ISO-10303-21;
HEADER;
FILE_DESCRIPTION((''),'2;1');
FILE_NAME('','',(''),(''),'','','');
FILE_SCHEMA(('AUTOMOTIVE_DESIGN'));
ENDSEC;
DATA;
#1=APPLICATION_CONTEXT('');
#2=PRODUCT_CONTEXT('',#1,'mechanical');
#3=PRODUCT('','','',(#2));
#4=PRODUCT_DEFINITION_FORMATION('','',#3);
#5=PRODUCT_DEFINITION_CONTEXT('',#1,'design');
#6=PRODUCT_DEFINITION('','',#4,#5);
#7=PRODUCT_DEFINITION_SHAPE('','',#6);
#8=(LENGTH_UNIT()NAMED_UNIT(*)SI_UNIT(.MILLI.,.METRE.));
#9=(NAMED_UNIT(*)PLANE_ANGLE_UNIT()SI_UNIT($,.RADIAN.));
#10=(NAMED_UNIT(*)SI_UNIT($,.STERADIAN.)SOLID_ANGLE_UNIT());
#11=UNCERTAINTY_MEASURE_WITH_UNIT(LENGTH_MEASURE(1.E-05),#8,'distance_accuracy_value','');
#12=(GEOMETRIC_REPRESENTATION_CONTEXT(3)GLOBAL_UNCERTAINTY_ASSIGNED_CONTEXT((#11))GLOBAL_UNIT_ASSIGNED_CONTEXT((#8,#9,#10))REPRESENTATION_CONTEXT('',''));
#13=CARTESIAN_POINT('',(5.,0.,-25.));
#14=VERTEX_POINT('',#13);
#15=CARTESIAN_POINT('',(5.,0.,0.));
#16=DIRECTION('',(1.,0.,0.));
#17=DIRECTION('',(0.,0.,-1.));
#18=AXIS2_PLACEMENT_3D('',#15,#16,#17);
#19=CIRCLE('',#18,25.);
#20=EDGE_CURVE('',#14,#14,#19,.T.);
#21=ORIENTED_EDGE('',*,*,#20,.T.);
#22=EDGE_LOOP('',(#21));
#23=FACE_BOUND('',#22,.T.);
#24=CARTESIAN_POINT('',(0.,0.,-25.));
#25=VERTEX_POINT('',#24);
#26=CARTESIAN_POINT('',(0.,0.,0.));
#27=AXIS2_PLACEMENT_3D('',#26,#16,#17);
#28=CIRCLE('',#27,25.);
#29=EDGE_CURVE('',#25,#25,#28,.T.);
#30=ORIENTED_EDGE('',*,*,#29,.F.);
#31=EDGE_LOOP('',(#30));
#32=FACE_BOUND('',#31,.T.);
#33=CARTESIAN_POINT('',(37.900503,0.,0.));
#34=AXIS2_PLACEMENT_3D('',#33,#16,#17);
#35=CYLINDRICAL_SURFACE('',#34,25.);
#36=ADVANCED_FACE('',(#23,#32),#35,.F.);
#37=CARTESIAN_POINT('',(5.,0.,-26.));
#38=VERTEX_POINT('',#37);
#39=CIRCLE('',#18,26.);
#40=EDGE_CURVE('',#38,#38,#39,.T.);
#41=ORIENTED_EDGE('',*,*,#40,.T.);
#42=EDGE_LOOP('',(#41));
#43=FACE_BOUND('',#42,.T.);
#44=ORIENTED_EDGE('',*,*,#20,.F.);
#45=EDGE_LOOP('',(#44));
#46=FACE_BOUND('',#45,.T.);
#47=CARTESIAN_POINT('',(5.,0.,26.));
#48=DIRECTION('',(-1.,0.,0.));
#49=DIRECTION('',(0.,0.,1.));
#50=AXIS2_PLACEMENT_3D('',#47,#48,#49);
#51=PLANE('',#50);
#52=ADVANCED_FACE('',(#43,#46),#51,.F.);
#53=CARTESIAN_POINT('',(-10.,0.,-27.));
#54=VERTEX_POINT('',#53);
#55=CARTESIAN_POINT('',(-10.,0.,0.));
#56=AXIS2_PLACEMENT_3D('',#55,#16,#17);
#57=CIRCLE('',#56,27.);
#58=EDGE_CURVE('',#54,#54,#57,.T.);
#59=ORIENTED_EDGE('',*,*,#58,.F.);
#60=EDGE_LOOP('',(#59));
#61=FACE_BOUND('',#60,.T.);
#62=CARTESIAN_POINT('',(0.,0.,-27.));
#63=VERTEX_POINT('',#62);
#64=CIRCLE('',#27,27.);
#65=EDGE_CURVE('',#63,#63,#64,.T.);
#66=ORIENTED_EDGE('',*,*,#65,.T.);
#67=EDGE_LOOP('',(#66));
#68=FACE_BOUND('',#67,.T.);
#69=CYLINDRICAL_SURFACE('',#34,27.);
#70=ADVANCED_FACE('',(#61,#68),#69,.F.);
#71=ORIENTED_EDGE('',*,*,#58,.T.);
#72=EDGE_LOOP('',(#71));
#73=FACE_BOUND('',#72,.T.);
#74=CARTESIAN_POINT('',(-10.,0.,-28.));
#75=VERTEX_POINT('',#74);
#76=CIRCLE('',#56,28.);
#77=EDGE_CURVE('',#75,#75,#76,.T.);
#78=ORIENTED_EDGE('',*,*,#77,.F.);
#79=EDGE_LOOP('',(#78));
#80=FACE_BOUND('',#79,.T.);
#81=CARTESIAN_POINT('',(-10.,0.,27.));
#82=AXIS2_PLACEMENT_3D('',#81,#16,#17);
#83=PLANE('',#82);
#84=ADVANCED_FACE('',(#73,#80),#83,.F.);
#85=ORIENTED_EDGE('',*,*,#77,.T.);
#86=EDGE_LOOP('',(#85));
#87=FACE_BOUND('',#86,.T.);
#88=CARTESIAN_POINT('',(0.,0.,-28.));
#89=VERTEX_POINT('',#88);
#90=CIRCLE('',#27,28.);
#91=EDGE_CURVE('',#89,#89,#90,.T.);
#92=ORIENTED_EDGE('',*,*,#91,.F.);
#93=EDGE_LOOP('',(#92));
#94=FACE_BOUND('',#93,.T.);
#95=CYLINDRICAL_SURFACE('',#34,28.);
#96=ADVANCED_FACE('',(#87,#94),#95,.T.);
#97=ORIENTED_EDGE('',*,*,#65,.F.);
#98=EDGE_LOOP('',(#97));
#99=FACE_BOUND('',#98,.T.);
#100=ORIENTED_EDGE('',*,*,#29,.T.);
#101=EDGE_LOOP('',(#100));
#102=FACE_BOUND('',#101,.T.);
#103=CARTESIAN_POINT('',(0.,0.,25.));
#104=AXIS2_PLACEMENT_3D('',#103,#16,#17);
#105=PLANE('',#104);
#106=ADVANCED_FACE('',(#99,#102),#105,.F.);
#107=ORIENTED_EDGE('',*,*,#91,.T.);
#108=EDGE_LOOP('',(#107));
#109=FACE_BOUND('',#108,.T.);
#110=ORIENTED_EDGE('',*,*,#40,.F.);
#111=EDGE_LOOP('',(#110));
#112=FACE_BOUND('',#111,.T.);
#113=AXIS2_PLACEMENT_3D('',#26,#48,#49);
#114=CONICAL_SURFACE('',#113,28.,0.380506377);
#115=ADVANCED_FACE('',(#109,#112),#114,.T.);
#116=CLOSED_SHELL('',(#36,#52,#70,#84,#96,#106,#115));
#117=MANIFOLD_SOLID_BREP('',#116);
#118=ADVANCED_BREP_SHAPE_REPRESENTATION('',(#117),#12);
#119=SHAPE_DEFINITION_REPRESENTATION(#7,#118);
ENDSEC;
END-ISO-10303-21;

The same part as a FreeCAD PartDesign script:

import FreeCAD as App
import Part
import Sketcher
from FreeCAD import Vector
Q = App.Units.Quantity


def add_polygon(sketch, points):
    """Adds a closed chain of lines whose ends are joined by coincident constraints."""
    first, n = sketch.GeometryCount, len(points)
    for a, b in zip(points, points[1:] + points[:1]):
        sketch.addGeometry(Part.LineSegment(App.Vector(*a, 0), App.Vector(*b, 0)), False)
    for i in range(n):
        sketch.addConstraint(Sketcher.Constraint("Coincident", first + i, 2, first + (i + 1) % n, 1))

doc = App.newDocument("Part")
body = doc.addObject("PartDesign::Body", "Body")

# Sketch on XZ plane
sketch1 = doc.addObject("Sketcher::SketchObject", "Sketch")
body.addObject(sketch1)
sketch1.AttachmentSupport = (doc.XZ_Plane, [""])
sketch1.MapMode = "FlatFace"
add_polygon(sketch1, [(0, 25), (0, 27), (-10, 27), (-10, 28), (0, 28), (5, 26), (5, 25)])  # lines 0-6
sketch1.addConstraint(Sketcher.Constraint("Vertical", 0))
sketch1.addConstraint(Sketcher.Constraint("Horizontal", 1))
sketch1.addConstraint(Sketcher.Constraint("Vertical", 2))
sketch1.addConstraint(Sketcher.Constraint("Horizontal", 3))
sketch1.addConstraint(Sketcher.Constraint("Vertical", 5))
sketch1.addConstraint(Sketcher.Constraint("Horizontal", 6))
sketch1.addConstraint(Sketcher.Constraint("PointOnObject", 0, 2, -2))
sketch1.addConstraint(Sketcher.Constraint("PointOnObject", 3, 2, -2))
sketch1.addConstraint(Sketcher.Constraint("Equal", 2, 5))
sketch1.addConstraint(Sketcher.Constraint("DistanceX", 1, 2, 1, 1, Q("10 mm")))
sketch1.addConstraint(Sketcher.Constraint("DistanceX", 6, 2, 6, 1, Q("5 mm")))
sketch1.addConstraint(Sketcher.Constraint("DistanceY", 0, 1, 0, 2, Q("2 mm")))
sketch1.addConstraint(Sketcher.Constraint("DistanceY", 2, 1, 2, 2, Q("1 mm")))
sketch1.addConstraint(Sketcher.Constraint("DistanceY", -1, 1, 0, 2, Q("27 mm")))
revolution = doc.addObject("PartDesign::Revolution", "Revolution")
body.addObject(revolution)
revolution.Profile = sketch1
revolution.ReferenceAxis = (sketch1, ["H_Axis"])
revolution.Angle = 360

doc.recompute()
